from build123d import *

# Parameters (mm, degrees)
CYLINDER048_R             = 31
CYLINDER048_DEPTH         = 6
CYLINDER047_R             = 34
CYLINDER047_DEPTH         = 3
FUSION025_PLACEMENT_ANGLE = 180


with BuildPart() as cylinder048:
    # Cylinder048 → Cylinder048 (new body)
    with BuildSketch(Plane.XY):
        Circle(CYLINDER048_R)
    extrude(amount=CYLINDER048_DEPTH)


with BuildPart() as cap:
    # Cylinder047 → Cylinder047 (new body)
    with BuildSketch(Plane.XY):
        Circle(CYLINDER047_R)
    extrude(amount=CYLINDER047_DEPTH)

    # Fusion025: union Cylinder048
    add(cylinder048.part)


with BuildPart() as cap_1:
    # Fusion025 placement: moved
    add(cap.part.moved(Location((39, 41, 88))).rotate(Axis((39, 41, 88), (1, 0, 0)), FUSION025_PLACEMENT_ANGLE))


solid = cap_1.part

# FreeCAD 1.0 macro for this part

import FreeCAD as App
import Part
import Sketcher

doc = App.newDocument("Part")
params = doc.addObject("Spreadsheet::Sheet", "Params")
for row, (alias, value) in enumerate([
    ("sketch1_diameter", "62 mm"),
    ("pad1_length", "6 mm"),
    ("sketch2_diameter", "68 mm"),
    ("pad2_length", "3 mm"),
], start=1):
    params.set(f"A{row}", alias)
    params.set(f"B{row}", "=" + value)
    params.setAlias(f"B{row}", alias)

body = doc.addObject("PartDesign::Body", "Body")

# Sketch on XY plane
sketch1 = body.newObject("Sketcher::SketchObject", "Sketch")
sketch1.AttachmentSupport = (doc.getObject("XY_Plane"), [""])
sketch1.MapMode = "FlatFace"
sketch1.addGeometry(Part.Circle(App.Vector(0, 0, 0), App.Vector(0, 0, 1), 31), False)
sketch1.addConstraint(Sketcher.Constraint("Coincident", 0, 3, -1, 1))
sketch1.addConstraint(Sketcher.Constraint("Diameter", 0, 62.0))
sketch1.setExpression("Constraints[1]", "Params.sketch1_diameter")
pad1 = body.newObject("PartDesign::Pad", "Pad")
pad1.Profile = sketch1
pad1.setExpression("Length", "Params.pad1_length")
body2 = doc.addObject("PartDesign::Body", "Body001")

# Sketch on XY plane
sketch2 = body2.newObject("Sketcher::SketchObject", "Sketch001")
sketch2.AttachmentSupport = (doc.getObject("XY_Plane001"), [""])
sketch2.MapMode = "FlatFace"
sketch2.addGeometry(Part.Circle(App.Vector(0, 0, 0), App.Vector(0, 0, 1), 34), False)
sketch2.addConstraint(Sketcher.Constraint("Coincident", 0, 3, -1, 1))
sketch2.addConstraint(Sketcher.Constraint("Diameter", 0, 68.0))
sketch2.setExpression("Constraints[1]", "Params.sketch2_diameter")
pad2 = body2.newObject("PartDesign::Pad", "Pad001")
pad2.Profile = sketch2
pad2.setExpression("Length", "Params.pad2_length")
doc.recompute()

boolean = body2.newObject("PartDesign::Boolean", "Boolean")
boolean.Type = "Fuse"
boolean.addObjects([body])
body3 = doc.addObject("PartDesign::Body", "Body002")
doc.recompute()

body2.Placement = App.Placement(App.Vector(39, 41, 88), App.Rotation(App.Vector(1, 0, 0), 180))
boolean2 = body3.newObject("PartDesign::Boolean", "Boolean001")
boolean2.Type = "Fuse"
boolean2.addObjects([body2])

doc.recompute()
